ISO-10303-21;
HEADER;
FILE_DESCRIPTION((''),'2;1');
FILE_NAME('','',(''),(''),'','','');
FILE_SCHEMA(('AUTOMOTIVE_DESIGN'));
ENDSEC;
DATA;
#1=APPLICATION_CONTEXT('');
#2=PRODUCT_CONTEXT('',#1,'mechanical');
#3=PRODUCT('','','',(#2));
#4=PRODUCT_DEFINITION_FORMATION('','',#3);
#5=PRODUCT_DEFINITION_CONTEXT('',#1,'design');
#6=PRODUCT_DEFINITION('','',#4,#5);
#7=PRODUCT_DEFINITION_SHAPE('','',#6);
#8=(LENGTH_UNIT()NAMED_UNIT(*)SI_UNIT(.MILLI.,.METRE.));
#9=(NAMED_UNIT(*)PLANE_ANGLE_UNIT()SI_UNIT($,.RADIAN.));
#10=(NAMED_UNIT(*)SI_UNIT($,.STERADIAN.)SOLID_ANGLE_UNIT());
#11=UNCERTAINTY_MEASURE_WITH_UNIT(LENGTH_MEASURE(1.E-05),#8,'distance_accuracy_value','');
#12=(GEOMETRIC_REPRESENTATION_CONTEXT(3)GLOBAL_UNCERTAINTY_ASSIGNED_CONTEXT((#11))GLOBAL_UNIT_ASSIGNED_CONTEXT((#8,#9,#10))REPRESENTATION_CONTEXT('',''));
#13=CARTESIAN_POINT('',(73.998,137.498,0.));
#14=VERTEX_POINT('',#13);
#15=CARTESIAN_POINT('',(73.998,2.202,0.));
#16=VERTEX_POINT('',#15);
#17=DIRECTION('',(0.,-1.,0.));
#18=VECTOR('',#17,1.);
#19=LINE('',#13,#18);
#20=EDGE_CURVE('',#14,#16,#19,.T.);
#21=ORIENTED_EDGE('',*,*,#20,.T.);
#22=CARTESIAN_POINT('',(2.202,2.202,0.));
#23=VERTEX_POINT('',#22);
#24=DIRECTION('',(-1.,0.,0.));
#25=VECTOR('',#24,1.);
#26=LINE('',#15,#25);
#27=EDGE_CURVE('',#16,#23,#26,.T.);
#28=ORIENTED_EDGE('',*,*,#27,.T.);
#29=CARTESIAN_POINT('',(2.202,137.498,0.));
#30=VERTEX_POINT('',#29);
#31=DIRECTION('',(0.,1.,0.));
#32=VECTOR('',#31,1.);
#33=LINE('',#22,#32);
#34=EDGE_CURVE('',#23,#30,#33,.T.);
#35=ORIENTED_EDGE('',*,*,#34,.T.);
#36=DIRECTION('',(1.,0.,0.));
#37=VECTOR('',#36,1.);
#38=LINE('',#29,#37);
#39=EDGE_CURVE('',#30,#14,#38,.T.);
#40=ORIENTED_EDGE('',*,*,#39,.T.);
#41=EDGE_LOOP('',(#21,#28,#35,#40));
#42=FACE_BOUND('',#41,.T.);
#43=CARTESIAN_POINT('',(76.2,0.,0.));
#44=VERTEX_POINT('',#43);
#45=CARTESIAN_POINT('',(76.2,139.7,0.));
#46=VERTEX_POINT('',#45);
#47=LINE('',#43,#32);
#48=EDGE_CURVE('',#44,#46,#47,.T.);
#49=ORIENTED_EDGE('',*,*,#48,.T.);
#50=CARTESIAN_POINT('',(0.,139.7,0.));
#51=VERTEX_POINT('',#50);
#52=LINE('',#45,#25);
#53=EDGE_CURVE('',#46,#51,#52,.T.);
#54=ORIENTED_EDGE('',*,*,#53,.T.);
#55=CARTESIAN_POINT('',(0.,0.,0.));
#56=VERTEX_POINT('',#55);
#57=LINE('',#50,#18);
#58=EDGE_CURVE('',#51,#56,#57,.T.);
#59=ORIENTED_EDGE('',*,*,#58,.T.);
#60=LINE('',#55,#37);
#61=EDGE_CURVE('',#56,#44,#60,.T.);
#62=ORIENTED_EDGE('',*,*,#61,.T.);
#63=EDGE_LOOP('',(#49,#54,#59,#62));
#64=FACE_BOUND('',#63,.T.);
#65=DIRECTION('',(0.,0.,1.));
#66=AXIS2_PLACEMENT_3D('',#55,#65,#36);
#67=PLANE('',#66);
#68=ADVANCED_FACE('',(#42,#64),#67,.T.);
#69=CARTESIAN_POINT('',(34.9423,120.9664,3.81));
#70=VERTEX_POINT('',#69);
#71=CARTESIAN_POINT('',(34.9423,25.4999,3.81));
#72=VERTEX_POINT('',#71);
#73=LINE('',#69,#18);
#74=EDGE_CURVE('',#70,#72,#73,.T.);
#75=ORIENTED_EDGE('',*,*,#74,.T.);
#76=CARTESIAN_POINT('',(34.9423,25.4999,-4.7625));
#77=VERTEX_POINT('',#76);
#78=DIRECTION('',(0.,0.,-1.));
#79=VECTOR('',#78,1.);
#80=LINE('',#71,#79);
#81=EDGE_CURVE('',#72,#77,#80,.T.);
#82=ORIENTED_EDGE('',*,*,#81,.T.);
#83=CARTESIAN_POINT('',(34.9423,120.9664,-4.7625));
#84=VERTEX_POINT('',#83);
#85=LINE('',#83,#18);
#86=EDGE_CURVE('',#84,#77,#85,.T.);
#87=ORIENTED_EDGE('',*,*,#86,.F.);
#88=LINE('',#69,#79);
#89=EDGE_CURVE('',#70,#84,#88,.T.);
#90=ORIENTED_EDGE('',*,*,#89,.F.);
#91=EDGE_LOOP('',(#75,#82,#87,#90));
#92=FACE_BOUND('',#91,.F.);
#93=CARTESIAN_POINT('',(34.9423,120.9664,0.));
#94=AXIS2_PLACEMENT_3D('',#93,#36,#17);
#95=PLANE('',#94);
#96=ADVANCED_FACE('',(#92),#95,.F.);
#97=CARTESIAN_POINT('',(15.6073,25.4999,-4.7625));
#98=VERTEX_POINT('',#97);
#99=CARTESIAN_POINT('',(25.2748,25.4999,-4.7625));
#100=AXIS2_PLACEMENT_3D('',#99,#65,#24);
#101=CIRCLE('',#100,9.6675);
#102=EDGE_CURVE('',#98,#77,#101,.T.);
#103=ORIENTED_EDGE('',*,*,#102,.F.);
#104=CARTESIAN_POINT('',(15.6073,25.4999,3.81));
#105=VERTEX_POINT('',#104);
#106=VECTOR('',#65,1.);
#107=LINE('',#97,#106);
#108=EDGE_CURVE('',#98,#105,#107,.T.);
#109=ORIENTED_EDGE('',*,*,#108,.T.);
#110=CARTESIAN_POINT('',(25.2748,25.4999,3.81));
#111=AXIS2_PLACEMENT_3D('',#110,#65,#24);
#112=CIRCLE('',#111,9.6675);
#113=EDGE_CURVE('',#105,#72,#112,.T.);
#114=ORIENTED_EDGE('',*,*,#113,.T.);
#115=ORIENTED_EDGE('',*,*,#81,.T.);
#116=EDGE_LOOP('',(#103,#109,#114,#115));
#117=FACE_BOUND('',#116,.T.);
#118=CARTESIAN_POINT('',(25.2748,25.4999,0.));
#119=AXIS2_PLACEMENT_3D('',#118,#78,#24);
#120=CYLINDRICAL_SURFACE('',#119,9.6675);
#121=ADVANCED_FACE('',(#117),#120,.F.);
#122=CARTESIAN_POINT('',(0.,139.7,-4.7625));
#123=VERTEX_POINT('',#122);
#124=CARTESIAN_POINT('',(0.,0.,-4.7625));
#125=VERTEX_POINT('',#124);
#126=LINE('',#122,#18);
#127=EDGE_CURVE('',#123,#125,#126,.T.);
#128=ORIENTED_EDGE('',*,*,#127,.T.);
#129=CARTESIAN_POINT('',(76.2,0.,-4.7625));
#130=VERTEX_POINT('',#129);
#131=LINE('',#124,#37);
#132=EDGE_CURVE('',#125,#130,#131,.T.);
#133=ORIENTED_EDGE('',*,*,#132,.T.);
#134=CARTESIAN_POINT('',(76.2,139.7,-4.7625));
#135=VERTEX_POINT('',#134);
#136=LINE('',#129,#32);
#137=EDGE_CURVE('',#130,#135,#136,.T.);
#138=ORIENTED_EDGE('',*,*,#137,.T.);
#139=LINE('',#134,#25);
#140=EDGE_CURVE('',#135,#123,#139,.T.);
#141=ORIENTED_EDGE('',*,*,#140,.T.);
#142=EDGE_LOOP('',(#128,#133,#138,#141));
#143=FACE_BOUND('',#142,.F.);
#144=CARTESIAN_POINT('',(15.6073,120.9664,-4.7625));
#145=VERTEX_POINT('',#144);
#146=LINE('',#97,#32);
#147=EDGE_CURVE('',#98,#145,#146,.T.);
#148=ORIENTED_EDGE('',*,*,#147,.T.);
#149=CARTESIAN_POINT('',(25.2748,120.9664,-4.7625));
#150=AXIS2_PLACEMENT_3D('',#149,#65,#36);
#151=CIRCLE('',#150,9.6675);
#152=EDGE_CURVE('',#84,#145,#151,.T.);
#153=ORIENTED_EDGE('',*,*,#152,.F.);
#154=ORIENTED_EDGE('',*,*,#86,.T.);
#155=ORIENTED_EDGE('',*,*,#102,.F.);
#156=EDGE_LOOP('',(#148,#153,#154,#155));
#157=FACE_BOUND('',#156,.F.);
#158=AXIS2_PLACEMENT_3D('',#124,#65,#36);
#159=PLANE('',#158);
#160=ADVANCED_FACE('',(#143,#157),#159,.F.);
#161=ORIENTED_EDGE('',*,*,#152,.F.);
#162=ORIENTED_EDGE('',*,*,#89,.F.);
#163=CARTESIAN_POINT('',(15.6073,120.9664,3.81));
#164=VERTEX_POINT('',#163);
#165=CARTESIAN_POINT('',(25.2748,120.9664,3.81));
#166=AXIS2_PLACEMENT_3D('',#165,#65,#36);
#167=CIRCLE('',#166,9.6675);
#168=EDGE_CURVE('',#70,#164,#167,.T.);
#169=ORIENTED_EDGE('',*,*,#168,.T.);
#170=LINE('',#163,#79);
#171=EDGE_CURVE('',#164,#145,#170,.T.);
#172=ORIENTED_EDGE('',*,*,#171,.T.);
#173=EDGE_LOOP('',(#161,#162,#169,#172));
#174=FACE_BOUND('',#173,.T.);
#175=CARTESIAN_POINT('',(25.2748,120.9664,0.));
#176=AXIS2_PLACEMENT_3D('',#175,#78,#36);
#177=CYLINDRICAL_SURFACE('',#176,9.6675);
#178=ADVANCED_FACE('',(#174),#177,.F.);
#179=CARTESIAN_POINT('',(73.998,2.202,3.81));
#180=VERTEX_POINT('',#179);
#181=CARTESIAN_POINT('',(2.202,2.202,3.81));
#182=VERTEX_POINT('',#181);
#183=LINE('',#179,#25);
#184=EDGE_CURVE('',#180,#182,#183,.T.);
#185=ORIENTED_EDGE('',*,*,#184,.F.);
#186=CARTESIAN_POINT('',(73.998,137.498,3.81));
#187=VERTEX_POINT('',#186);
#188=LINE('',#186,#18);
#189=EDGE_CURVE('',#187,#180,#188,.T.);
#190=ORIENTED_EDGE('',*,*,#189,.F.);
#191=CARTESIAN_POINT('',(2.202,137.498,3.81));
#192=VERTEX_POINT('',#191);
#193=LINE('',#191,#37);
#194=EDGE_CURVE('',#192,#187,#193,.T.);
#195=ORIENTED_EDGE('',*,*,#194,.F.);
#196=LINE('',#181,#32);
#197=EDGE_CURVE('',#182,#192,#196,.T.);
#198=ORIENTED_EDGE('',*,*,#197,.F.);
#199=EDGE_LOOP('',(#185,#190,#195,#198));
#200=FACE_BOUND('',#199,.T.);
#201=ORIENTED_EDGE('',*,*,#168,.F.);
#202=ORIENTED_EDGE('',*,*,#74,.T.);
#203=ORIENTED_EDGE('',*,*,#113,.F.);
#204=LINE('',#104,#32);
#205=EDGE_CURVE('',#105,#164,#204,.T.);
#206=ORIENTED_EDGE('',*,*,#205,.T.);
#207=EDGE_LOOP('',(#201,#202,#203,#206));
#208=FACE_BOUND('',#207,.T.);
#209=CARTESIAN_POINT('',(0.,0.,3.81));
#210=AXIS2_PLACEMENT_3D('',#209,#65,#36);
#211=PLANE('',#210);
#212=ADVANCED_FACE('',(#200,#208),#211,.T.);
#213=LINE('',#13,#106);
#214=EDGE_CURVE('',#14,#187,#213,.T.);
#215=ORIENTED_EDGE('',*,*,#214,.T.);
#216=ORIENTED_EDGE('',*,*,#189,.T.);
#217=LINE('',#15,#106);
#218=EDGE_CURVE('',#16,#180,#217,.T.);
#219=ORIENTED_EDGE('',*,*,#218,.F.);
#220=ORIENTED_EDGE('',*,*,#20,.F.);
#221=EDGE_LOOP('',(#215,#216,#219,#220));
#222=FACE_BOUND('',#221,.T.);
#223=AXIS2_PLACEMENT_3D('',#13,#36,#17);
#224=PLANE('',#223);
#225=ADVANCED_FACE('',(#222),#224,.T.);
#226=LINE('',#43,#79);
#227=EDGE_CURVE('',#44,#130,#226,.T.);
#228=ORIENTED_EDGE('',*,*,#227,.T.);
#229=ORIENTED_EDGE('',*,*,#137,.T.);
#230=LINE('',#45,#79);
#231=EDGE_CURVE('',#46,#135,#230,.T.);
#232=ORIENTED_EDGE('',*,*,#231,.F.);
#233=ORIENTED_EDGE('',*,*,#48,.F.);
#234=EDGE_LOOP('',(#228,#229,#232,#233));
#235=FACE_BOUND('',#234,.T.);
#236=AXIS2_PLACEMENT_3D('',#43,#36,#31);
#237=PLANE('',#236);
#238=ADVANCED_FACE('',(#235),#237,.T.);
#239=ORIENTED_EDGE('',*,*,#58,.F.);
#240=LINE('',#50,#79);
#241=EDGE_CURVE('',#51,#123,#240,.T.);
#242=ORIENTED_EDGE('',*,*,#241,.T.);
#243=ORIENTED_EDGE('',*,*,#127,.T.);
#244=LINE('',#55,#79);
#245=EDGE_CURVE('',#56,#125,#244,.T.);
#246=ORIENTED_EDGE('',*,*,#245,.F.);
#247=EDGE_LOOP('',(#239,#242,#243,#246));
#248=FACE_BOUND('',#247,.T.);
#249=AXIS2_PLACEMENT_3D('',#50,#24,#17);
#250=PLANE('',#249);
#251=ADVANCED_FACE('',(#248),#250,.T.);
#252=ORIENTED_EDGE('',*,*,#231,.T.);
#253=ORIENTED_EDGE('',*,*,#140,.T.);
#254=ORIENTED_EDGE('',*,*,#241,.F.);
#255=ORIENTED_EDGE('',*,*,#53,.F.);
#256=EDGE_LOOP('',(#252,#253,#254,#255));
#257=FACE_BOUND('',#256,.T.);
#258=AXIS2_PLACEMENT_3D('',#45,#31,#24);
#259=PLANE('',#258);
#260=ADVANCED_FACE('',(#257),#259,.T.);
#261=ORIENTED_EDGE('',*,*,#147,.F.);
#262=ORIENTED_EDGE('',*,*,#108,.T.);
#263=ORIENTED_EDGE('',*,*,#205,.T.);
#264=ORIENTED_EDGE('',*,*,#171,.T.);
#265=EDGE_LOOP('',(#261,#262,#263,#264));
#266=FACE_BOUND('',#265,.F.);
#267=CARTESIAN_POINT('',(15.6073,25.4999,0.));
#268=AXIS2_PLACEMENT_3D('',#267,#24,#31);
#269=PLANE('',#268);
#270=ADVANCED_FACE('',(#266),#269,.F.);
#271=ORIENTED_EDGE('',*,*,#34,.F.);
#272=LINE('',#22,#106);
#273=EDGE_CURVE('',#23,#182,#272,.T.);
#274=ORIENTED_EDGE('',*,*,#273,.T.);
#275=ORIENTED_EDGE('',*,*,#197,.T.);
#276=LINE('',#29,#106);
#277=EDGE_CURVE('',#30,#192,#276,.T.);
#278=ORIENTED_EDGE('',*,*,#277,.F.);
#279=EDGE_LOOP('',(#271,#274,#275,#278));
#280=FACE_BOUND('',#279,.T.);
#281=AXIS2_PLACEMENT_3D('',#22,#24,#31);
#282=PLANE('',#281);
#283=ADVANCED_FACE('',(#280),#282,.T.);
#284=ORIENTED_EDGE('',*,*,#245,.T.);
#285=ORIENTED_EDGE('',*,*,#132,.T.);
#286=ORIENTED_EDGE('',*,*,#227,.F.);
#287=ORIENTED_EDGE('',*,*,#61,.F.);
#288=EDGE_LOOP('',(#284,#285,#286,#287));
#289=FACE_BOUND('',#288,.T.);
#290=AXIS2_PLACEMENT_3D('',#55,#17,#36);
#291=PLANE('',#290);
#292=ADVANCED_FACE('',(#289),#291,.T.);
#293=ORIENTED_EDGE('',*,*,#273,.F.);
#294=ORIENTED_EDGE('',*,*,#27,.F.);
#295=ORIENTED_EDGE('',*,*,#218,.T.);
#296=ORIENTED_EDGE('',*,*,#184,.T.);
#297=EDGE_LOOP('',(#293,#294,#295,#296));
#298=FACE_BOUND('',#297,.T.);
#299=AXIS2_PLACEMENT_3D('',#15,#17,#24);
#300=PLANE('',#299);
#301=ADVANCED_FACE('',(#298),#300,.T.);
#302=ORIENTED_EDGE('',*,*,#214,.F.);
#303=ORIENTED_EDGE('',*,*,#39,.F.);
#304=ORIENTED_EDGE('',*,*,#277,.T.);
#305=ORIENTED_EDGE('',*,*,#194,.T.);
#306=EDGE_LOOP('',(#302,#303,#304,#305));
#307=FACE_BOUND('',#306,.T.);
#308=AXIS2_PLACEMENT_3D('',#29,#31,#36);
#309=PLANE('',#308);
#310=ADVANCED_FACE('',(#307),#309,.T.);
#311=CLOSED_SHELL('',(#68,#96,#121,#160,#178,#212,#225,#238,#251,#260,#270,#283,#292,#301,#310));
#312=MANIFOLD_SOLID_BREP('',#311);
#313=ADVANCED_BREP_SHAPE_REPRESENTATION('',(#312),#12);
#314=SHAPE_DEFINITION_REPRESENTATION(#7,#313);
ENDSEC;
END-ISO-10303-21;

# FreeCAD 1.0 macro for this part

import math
import FreeCAD as App
import Part
import Sketcher
from FreeCAD import Vector
Q = App.Units.Quantity


def add_polygon(sketch, points):
    """Adds a closed chain of lines whose ends are joined by coincident constraints."""
    first, n = sketch.GeometryCount, len(points)
    for a, b in zip(points, points[1:] + points[:1]):
        sketch.addGeometry(Part.LineSegment(App.Vector(*a, 0), App.Vector(*b, 0)), False)
    for i in range(n):
        sketch.addConstraint(Sketcher.Constraint("Coincident", first + i, 2, first + (i + 1) % n, 1))

doc = App.newDocument("Part")
body = doc.addObject("PartDesign::Body", "Body")

# Sketch on XY plane
sketch1 = doc.addObject("Sketcher::SketchObject", "Sketch")
body.addObject(sketch1)
sketch1.AttachmentSupport = (doc.XY_Plane, [""])
sketch1.MapMode = "FlatFace"
add_polygon(sketch1, [(0, 140), (0, 0), (76, 0), (76, 140)])  # lines 0-3
sketch1.addGeometry(Part.ArcOfCircle(Part.Circle(Vector(25, 25, 0), Vector(0, 0, 1), 10), math.radians(180), math.radians(360)), False)  # 4
sketch1.addGeometry(Part.LineSegment(Vector(16, 25, 0), Vector(16, 121, 0)), False)  # 5
sketch1.addGeometry(Part.ArcOfCircle(Part.Circle(Vector(25, 121, 0), Vector(0, 0, 1), 10), math.radians(0), math.radians(180)), False)  # 6
sketch1.addGeometry(Part.LineSegment(Vector(35, 121, 0), Vector(35, 25, 0)), False)  # 7
sketch1.addConstraint([
    Sketcher.Constraint("Tangent", 4, 1, 5, 1),
    Sketcher.Constraint("Tangent", 5, 2, 6, 2),
    Sketcher.Constraint("Tangent", 6, 1, 7, 1),
    Sketcher.Constraint("Tangent", 7, 2, 4, 2),
    Sketcher.Constraint("Vertical", 0),
    Sketcher.Constraint("Horizontal", 1),
    Sketcher.Constraint("Vertical", 2),
    Sketcher.Constraint("Horizontal", 3),
    Sketcher.Constraint("Vertical", 5),
    Sketcher.Constraint("Vertical", 7),
    Sketcher.Constraint("Coincident", 0, 2, -1, 1),
    Sketcher.Constraint("DistanceX", 1, 1, 1, 2, Q("3 in")),
    Sketcher.Constraint("DistanceY", 0, 2, 0, 1, Q("5.5 in")),
    Sketcher.Constraint("Radius", 4, Q("0.3806 in")),
    Sketcher.Constraint("DistanceY", 5, 1, 5, 2, 95.4665),
    Sketcher.Constraint("DistanceX", -1, 1, 4, 3, 25.2748),
    Sketcher.Constraint("DistanceY", -1, 1, 4, 3, 25.5),
])
pad1 = doc.addObject("PartDesign::Pad", "Pad")
body.addObject(pad1)
pad1.Profile = sketch1
pad1.Length = Q("0.1875 in")
pad1.Reversed = True

# Sketch on XY plane
sketch2 = doc.addObject("Sketcher::SketchObject", "Sketch001")
body.addObject(sketch2)
sketch2.AttachmentSupport = (doc.XY_Plane, [""])
sketch2.MapMode = "FlatFace"
add_polygon(sketch2, [(74, 137), (2, 137), (2, 2), (74, 2)])  # lines 0-3
sketch2.addGeometry(Part.ArcOfCircle(Part.Circle(Vector(25, 25, 0), Vector(0, 0, 1), 10), math.radians(180), math.radians(360)), False)  # 4
sketch2.addGeometry(Part.LineSegment(Vector(16, 25, 0), Vector(16, 121, 0)), False)  # 5
sketch2.addGeometry(Part.ArcOfCircle(Part.Circle(Vector(25, 121, 0), Vector(0, 0, 1), 10), math.radians(0), math.radians(180)), False)  # 6
sketch2.addGeometry(Part.LineSegment(Vector(35, 121, 0), Vector(35, 25, 0)), False)  # 7
sketch2.addConstraint([
    Sketcher.Constraint("Tangent", 4, 1, 5, 1),
    Sketcher.Constraint("Tangent", 5, 2, 6, 2),
    Sketcher.Constraint("Tangent", 6, 1, 7, 1),
    Sketcher.Constraint("Tangent", 7, 2, 4, 2),
    Sketcher.Constraint("Horizontal", 0),
    Sketcher.Constraint("Vertical", 1),
    Sketcher.Constraint("Horizontal", 2),
    Sketcher.Constraint("Vertical", 3),
    Sketcher.Constraint("Vertical", 5),
    Sketcher.Constraint("Vertical", 7),
    Sketcher.Constraint("Radius", 4, Q("0.3806 in")),
    Sketcher.Constraint("DistanceX", 0, 2, 6, 1, Q("1.289 in")),
    Sketcher.Constraint("DistanceX", 0, 2, 0, 1, 71.796),
    Sketcher.Constraint("DistanceY", 1, 2, 1, 1, 135.296),
    Sketcher.Constraint("DistanceY", 5, 1, 5, 2, 95.4665),
    Sketcher.Constraint("DistanceX", -1, 1, 0, 2, Q("0.0867 in")),
    Sketcher.Constraint("DistanceY", -1, 1, 0, 2, Q("5.4133 in")),
    Sketcher.Constraint("DistanceY", -1, 1, 4, 3, 25.5),
])
pad2 = doc.addObject("PartDesign::Pad", "Pad001")
body.addObject(pad2)
pad2.Profile = sketch2
pad2.Length = Q("0.15 in")

doc.recompute()
